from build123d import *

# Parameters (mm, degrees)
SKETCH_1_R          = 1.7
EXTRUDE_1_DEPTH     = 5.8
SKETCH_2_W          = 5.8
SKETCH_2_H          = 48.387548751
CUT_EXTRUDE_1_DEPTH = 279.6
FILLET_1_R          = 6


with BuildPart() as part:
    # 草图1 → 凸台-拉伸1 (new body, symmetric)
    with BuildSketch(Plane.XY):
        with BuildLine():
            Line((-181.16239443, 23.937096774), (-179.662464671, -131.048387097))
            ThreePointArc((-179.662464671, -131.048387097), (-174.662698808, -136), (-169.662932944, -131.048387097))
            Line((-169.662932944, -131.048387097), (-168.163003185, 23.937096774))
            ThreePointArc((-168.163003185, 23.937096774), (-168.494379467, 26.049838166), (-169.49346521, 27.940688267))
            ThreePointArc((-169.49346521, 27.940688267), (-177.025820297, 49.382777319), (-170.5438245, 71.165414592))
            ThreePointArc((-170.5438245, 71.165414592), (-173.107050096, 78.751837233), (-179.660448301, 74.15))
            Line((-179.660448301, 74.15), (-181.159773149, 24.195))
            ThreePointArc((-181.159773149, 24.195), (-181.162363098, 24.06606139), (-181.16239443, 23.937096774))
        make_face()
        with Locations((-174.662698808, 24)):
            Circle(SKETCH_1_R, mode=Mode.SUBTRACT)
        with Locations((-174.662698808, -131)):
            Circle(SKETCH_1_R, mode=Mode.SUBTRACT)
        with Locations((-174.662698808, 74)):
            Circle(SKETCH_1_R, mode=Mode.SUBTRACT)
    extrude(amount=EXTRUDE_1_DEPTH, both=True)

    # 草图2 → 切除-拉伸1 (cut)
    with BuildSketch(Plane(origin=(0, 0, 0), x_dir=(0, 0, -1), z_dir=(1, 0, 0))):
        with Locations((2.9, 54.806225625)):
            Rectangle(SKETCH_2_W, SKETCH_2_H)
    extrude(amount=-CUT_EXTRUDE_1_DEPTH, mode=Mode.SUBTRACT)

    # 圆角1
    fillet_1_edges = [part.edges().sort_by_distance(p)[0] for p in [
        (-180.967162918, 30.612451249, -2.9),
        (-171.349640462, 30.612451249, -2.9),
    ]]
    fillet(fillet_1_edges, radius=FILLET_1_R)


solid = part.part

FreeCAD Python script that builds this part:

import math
import FreeCAD as App
import Part
import Sketcher


def edges_at(feature, points):
    """Names of the edges that pass closest to the given points."""
    edges = feature.Shape.Edges
    near = lambda p: min(range(len(edges)), key=lambda i: edges[i].distToShape(Part.Vertex(*p))[0])
    return sorted({f"Edge{near(p) + 1}" for p in points})


def add_polygon(sketch, points):
    """Adds a closed chain of lines whose ends are joined by coincident constraints."""
    first, n = sketch.GeometryCount, len(points)
    for a, b in zip(points, points[1:] + points[:1]):
        sketch.addGeometry(Part.LineSegment(App.Vector(*a, 0), App.Vector(*b, 0)), False)
    for i in range(n):
        sketch.addConstraint(Sketcher.Constraint("Coincident", first + i, 2, first + (i + 1) % n, 1))

doc = App.newDocument("Part")
body = doc.addObject("PartDesign::Body", "Body")

sketch1 = body.newObject("Sketcher::SketchObject", "Sketch")
sketch1.AttachmentSupport = (doc.getObject("XY_Plane"), [""])
sketch1.MapMode = "FlatFace"
sketch1.addGeometry(Part.LineSegment(App.Vector(-181.162394, 23.937097, 0), App.Vector(-179.662465, -131.048387, 0)), False)
sketch1.addGeometry(Part.ArcOfCircle(Part.Circle(App.Vector(-174.662699, -131, 0), App.Vector(0, 0, 1), 5), math.radians(-179.445516), math.radians(-0.554484)), False)
sketch1.addGeometry(Part.LineSegment(App.Vector(-169.662933, -131.048387, 0), App.Vector(-168.163003, 23.937097, 0)), False)
sketch1.addGeometry(Part.ArcOfCircle(Part.Circle(App.Vector(-174.662699, 24, 0), App.Vector(0, 0, 1), 6.5), math.radians(-0.554484), math.radians(37.319546)), False)
sketch1.addGeometry(Part.ArcOfCircle(Part.Circle(App.Vector(-140.192523, 50.277825, 0), App.Vector(0, 0, 1), 36.84417), math.radians(145.464477), math.radians(217.319546)), False)
sketch1.addGeometry(Part.ArcOfCircle(Part.Circle(App.Vector(-174.662699, 74, 0), App.Vector(0, 0, 1), 5), math.radians(-34.535523), math.radians(178.280869)), False)
sketch1.addGeometry(Part.LineSegment(App.Vector(-179.660448, 74.15, 0), App.Vector(-181.159773, 24.195, 0)), False)
sketch1.addGeometry(Part.ArcOfCircle(Part.Circle(App.Vector(-174.662697, 24, 0), App.Vector(0, 0, 1), 6.500001), math.radians(178.280869), math.radians(180.554484)), False)
sketch1.addGeometry(Part.Circle(App.Vector(-174.662699, -131, 0), App.Vector(0, 0, 1), 1.7), False)
sketch1.addGeometry(Part.Circle(App.Vector(-174.662699, 24, 0), App.Vector(0, 0, 1), 1.7), False)
sketch1.addGeometry(Part.Circle(App.Vector(-174.662699, 74, 0), App.Vector(0, 0, 1), 1.7), False)
sketch1.addConstraint(Sketcher.Constraint("Tangent", 0, 2, 1, 1))
sketch1.addConstraint(Sketcher.Constraint("Tangent", 1, 2, 2, 1))
sketch1.addConstraint(Sketcher.Constraint("Tangent", 2, 2, 3, 1))
sketch1.addConstraint(Sketcher.Constraint("Tangent", 3, 2, 4, 2))
sketch1.addConstraint(Sketcher.Constraint("Tangent", 4, 1, 5, 1))
sketch1.addConstraint(Sketcher.Constraint("Tangent", 5, 2, 6, 1))
sketch1.addConstraint(Sketcher.Constraint("Tangent", 6, 2, 7, 1))
sketch1.addConstraint(Sketcher.Constraint("Tangent", 7, 2, 0, 1))
sketch1.addConstraint(Sketcher.Constraint("Coincident", 7, 3, 3, 3))
sketch1.addConstraint(Sketcher.Constraint("Coincident", 8, 3, 1, 3))
sketch1.addConstraint(Sketcher.Constraint("Coincident", 9, 3, 3, 3))
sketch1.addConstraint(Sketcher.Constraint("Coincident", 10, 3, 5, 3))
sketch1.addConstraint(Sketcher.Constraint("Equal", 1, 5))
sketch1.addConstraint(Sketcher.Constraint("Equal", 3, 7))
sketch1.addConstraint(Sketcher.Constraint("Equal", 8, 9))
sketch1.addConstraint(Sketcher.Constraint("Equal", 9, 10))
sketch1.addConstraint(Sketcher.Constraint("Horizontal", 0, 2, 1, 2))
sketch1.addConstraint(Sketcher.Constraint("Vertical", 3, 3, 5, 3))
sketch1.addConstraint(Sketcher.Constraint("Radius", 1, 5.0))
sketch1.addConstraint(Sketcher.Constraint("Diameter", 8, 3.4))
sketch1.addConstraint(Sketcher.Constraint("Radius", 3, 6.5))
sketch1.addConstraint(Sketcher.Constraint("DistanceY", 1, 3, -1, 1, 131.0))
sketch1.addConstraint(Sketcher.Constraint("DistanceY", -1, 1, 3, 3, 24.0))
sketch1.addConstraint(Sketcher.Constraint("DistanceY", -1, 1, 5, 3, 74.0))
sketch1.addConstraint(Sketcher.Constraint("Radius", 4, 36.84417))
sketch1.addConstraint(Sketcher.Constraint("DistanceX", 1, 3, -1, 1, 174.662699))
pad1 = body.newObject("PartDesign::Pad", "Pad")
pad1.Profile = sketch1
pad1.Length = 11.6
pad1.Midplane = True

sketch2 = body.newObject("Sketcher::SketchObject", "Sketch001")
sketch2.AttachmentSupport = (doc.getObject("YZ_Plane"), [""])
sketch2.MapMode = "FlatFace"
add_polygon(sketch2, [(79, 0), (30.612451, 0), (30.612451, -5.8), (79, -5.8)])
sketch2.addConstraint(Sketcher.Constraint("Horizontal", 0))
sketch2.addConstraint(Sketcher.Constraint("Vertical", 1))
sketch2.addConstraint(Sketcher.Constraint("Horizontal", 2))
sketch2.addConstraint(Sketcher.Constraint("Vertical", 3))
sketch2.addConstraint(Sketcher.Constraint("PointOnObject", 0, 2, -1))
sketch2.addConstraint(Sketcher.Constraint("DistanceY", 1, 2, 1, 1, 5.8))
sketch2.addConstraint(Sketcher.Constraint("DistanceX", -1, 1, 2, 2, 79.0))
sketch2.addConstraint(Sketcher.Constraint("DistanceX", 0, 2, 0, 1, 48.387549))
pocket1 = body.newObject("PartDesign::Pocket", "Pocket")
pocket1.Profile = sketch2
pocket1.Length = 279.6
doc.recompute()

fillet = body.newObject("PartDesign::Fillet", "Fillet")
fillet.Base = (pocket1, edges_at(pocket1, [(-180.967, 30.612, -2.9), (-171.35, 30.612, -2.9)]))
fillet.Radius = 6

doc.recompute()
